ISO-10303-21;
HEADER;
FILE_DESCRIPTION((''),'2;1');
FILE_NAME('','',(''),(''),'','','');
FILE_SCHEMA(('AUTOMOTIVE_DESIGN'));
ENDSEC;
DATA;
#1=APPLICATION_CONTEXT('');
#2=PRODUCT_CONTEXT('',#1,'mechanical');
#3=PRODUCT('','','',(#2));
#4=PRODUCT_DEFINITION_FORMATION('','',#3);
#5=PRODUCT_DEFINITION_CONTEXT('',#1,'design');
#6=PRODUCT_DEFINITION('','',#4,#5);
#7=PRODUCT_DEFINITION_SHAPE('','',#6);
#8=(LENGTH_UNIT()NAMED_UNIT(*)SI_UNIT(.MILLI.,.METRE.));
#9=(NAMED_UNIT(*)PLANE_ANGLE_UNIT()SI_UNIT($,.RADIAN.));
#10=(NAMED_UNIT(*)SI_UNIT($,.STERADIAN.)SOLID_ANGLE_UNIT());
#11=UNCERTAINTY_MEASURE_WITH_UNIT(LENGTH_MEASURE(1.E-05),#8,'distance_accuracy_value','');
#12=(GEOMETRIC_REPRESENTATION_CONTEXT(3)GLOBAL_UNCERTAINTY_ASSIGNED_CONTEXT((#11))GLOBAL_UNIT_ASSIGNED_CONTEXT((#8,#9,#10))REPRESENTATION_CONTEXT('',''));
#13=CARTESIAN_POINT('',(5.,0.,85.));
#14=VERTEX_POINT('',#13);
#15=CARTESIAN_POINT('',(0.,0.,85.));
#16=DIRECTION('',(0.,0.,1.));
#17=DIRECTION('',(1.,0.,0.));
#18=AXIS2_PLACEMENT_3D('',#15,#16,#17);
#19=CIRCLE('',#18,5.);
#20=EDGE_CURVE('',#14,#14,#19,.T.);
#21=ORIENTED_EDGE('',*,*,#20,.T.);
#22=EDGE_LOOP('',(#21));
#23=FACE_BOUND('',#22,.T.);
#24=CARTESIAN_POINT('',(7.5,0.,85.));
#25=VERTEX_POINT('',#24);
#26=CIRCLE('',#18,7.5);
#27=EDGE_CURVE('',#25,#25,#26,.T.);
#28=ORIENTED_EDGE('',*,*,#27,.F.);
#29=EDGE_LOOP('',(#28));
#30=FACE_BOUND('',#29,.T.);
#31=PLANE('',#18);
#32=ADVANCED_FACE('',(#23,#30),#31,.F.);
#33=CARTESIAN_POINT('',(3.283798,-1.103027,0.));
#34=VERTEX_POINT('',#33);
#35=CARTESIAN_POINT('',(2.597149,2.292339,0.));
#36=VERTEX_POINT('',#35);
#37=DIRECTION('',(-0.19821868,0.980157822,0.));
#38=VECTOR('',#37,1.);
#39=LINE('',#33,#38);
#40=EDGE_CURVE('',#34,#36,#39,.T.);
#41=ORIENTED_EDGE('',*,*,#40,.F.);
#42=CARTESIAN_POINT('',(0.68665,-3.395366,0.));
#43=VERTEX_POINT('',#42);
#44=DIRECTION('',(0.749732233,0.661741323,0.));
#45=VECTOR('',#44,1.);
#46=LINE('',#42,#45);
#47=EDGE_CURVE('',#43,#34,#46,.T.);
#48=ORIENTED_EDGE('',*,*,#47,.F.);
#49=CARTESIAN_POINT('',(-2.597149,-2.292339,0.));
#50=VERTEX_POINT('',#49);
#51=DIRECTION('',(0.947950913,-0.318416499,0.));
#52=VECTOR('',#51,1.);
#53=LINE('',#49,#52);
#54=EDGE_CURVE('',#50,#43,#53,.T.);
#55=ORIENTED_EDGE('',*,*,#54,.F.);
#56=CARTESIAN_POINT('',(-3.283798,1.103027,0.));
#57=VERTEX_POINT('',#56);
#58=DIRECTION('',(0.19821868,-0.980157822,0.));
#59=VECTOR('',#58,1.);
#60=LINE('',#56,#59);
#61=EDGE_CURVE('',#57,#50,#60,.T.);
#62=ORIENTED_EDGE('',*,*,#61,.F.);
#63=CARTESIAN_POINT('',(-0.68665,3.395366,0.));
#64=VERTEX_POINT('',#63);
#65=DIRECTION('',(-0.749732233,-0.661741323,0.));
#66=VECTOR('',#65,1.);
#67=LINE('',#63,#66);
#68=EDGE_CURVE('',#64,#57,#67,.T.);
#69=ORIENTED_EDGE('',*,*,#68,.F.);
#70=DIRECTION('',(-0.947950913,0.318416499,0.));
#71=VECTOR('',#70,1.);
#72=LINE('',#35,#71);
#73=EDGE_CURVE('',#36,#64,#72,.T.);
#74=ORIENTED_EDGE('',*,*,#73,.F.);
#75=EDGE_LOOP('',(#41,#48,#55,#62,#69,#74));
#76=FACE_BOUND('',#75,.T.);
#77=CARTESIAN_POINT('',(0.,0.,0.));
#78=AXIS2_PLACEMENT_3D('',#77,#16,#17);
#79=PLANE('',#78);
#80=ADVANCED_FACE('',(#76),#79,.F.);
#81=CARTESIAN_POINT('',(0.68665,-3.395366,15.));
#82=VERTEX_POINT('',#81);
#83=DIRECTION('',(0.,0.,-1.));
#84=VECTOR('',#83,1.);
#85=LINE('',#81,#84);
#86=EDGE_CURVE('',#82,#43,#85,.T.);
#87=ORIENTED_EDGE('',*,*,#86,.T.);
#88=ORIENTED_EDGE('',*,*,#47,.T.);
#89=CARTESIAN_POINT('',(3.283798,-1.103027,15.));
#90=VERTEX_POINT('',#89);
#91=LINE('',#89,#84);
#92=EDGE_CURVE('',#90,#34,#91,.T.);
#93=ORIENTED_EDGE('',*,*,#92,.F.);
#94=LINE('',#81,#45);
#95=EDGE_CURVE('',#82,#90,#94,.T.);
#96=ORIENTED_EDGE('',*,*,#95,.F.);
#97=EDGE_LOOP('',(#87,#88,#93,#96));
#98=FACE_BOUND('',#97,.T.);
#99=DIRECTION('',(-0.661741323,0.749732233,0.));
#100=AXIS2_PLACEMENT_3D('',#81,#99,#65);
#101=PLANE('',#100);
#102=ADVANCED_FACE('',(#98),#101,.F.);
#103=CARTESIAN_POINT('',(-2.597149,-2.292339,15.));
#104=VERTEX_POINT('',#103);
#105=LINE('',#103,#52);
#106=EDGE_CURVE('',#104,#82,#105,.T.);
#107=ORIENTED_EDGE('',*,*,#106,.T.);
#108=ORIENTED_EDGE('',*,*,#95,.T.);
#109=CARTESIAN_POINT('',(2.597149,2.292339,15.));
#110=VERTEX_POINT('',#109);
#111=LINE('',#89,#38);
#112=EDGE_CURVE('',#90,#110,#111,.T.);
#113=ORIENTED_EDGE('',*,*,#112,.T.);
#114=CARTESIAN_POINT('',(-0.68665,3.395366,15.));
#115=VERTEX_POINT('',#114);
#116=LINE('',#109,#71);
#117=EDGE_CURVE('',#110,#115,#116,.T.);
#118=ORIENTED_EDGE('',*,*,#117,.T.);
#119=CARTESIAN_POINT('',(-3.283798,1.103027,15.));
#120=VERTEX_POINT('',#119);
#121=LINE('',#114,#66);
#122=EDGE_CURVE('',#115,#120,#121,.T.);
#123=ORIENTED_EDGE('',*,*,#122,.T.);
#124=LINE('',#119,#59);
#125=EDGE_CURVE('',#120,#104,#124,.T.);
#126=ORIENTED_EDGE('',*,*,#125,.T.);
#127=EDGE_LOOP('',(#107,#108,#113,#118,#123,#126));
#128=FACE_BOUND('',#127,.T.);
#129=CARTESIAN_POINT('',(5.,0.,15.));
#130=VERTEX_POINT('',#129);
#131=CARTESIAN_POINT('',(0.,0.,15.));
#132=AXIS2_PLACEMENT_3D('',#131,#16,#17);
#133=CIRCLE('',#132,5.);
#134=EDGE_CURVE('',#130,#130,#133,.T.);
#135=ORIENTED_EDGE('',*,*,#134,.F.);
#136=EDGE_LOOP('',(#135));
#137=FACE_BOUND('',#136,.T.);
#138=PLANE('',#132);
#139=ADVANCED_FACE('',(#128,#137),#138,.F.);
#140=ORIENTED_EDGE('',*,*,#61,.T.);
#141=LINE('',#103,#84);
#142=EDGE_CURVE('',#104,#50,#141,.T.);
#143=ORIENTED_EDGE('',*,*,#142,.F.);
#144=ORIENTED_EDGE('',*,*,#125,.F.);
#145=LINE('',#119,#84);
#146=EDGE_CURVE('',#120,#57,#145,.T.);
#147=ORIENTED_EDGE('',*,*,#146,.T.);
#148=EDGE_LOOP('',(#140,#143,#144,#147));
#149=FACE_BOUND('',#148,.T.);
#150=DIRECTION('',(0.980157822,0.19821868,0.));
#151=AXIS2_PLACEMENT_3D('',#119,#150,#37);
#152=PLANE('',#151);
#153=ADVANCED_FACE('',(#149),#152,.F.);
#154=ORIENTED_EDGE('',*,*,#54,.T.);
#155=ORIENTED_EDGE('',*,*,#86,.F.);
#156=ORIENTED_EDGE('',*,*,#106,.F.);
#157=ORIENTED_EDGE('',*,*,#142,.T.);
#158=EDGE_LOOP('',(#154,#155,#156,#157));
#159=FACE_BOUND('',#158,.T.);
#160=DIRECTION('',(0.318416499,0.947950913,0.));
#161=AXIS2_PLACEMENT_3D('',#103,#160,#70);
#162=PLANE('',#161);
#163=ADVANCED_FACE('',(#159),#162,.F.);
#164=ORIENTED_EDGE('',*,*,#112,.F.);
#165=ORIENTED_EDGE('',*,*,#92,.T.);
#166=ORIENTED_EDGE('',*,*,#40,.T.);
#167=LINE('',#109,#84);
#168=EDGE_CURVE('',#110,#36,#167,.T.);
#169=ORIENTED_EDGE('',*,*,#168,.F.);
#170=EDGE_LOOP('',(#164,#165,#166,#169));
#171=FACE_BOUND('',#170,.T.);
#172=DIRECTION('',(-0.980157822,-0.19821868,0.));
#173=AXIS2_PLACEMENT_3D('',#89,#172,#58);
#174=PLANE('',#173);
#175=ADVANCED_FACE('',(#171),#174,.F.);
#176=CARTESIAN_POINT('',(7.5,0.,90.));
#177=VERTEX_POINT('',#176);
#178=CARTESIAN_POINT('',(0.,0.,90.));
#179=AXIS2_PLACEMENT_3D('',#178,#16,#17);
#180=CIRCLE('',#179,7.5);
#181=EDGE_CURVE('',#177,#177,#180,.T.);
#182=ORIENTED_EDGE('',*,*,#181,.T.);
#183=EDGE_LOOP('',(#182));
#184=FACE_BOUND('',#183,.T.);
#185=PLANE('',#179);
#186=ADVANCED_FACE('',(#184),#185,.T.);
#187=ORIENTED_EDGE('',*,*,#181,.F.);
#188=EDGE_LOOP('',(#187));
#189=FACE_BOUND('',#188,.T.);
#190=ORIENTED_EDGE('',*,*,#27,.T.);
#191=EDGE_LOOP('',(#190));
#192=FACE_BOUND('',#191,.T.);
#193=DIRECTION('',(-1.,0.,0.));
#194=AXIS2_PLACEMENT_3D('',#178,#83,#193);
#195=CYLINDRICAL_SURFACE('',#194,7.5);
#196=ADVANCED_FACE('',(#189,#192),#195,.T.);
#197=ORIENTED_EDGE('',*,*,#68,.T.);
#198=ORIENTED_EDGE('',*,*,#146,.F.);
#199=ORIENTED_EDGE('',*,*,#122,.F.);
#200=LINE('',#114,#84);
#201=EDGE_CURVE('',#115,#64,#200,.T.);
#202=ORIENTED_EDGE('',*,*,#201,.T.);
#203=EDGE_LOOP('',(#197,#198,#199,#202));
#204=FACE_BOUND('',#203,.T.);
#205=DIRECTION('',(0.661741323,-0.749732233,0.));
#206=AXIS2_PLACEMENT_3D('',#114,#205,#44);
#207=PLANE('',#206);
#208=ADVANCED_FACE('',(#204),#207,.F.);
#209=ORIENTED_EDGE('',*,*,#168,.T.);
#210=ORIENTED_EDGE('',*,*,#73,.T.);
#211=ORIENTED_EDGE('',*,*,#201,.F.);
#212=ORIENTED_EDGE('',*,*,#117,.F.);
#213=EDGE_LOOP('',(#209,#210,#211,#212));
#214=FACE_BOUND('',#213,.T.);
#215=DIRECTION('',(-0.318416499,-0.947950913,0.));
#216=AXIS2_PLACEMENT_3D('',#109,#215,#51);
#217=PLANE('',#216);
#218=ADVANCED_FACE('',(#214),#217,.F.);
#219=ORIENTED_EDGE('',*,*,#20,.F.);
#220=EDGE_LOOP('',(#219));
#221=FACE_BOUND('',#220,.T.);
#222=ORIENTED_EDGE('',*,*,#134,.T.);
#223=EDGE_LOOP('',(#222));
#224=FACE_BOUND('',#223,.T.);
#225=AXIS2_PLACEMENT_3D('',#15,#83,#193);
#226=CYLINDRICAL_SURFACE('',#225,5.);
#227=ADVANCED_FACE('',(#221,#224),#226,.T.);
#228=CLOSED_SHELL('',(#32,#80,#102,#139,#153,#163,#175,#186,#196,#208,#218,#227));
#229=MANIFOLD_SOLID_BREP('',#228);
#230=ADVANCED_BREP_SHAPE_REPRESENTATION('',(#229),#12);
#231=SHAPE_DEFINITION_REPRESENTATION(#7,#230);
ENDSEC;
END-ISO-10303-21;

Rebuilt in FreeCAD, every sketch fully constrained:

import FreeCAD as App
import Part
import Sketcher
Q = App.Units.Quantity

doc = App.newDocument("Part")
body = doc.addObject("PartDesign::Body", "Body")

# Sketch on XY plane
sketch1 = body.newObject("Sketcher::SketchObject", "Sketch")
sketch1.AttachmentSupport = (doc.getObject("XY_Plane"), [""])
sketch1.MapMode = "FlatFace"
sketch1.addGeometry(Part.LineSegment(App.Vector(-0.7, 3.4, 0), App.Vector(-3.3, 1.1, 0)), False)
sketch1.addGeometry(Part.LineSegment(App.Vector(-3.3, 1.1, 0), App.Vector(-2.6, -2.3, 0)), False)
sketch1.addGeometry(Part.LineSegment(App.Vector(-2.6, -2.3, 0), App.Vector(0.7, -3.4, 0)), False)
sketch1.addGeometry(Part.LineSegment(App.Vector(0.7, -3.4, 0), App.Vector(3.3, -1.1, 0)), False)
sketch1.addGeometry(Part.LineSegment(App.Vector(3.3, -1.1, 0), App.Vector(2.6, 2.3, 0)), False)
sketch1.addGeometry(Part.LineSegment(App.Vector(2.6, 2.3, 0), App.Vector(-0.7, 3.4, 0)), False)
sketch1.addConstraint(Sketcher.Constraint("Coincident", 0, 2, 1, 1))
sketch1.addConstraint(Sketcher.Constraint("Coincident", 1, 2, 2, 1))
sketch1.addConstraint(Sketcher.Constraint("Coincident", 2, 2, 3, 1))
sketch1.addConstraint(Sketcher.Constraint("Coincident", 3, 2, 4, 1))
sketch1.addConstraint(Sketcher.Constraint("Coincident", 4, 2, 5, 1))
sketch1.addConstraint(Sketcher.Constraint("Coincident", 5, 2, 0, 1))
sketch1.addConstraint(Sketcher.Constraint("Symmetric", 0, 2, 3, 2, -1, 1))
sketch1.addConstraint(Sketcher.Constraint("Symmetric", 1, 2, 4, 2, -1, 1))
sketch1.addConstraint(Sketcher.Constraint("Symmetric", 2, 2, 5, 2, -1, 1))
sketch1.addConstraint(Sketcher.Constraint("Equal", 0, 1))
sketch1.addConstraint(Sketcher.Constraint("Equal", 1, 2))
sketch1.addConstraint(Sketcher.Constraint("Distance", 0, Q("3.464102 mm")))
sketch1.addConstraint(Sketcher.Constraint("DistanceX", 0, 2, -1, 1, Q("3.283798 mm")))
sketch1.addConstraint(Sketcher.Constraint("DistanceX", 1, 2, 2, 2, Q("3.283798 mm")))
sketch1.addConstraint(Sketcher.Constraint("DistanceX", 2, 2, 4, 2, Q("1.910499 mm")))
pad1 = body.newObject("PartDesign::Pad", "Pad")
pad1.Profile = sketch1
pad1.Length = 15

# Sketch on XY plane
sketch2 = body.newObject("Sketcher::SketchObject", "Sketch001")
sketch2.AttachmentSupport = (doc.getObject("XY_Plane"), [""])
sketch2.MapMode = "FlatFace"
sketch2.AttachmentOffset = App.Placement(App.Vector(0, 0, 15), App.Rotation())
sketch2.addGeometry(Part.Circle(App.Vector(0, 0, 0), App.Vector(0, 0, 1), 5), False)
sketch2.addConstraint(Sketcher.Constraint("Coincident", 0, 3, -1, 1))
sketch2.addConstraint(Sketcher.Constraint("Diameter", 0, Q("10 mm")))
pad2 = body.newObject("PartDesign::Pad", "Pad001")
pad2.Profile = sketch2
pad2.Length = 70

# Sketch on XY plane
sketch3 = body.newObject("Sketcher::SketchObject", "Sketch002")
sketch3.AttachmentSupport = (doc.getObject("XY_Plane"), [""])
sketch3.MapMode = "FlatFace"
sketch3.AttachmentOffset = App.Placement(App.Vector(0, 0, 85), App.Rotation())
sketch3.addGeometry(Part.Circle(App.Vector(0, 0, 0), App.Vector(0, 0, 1), 8), False)
sketch3.addConstraint(Sketcher.Constraint("Coincident", 0, 3, -1, 1))
sketch3.addConstraint(Sketcher.Constraint("Diameter", 0, Q("15 mm")))
pad3 = body.newObject("PartDesign::Pad", "Pad002")
pad3.Profile = sketch3
pad3.Length = 5

doc.recompute()
